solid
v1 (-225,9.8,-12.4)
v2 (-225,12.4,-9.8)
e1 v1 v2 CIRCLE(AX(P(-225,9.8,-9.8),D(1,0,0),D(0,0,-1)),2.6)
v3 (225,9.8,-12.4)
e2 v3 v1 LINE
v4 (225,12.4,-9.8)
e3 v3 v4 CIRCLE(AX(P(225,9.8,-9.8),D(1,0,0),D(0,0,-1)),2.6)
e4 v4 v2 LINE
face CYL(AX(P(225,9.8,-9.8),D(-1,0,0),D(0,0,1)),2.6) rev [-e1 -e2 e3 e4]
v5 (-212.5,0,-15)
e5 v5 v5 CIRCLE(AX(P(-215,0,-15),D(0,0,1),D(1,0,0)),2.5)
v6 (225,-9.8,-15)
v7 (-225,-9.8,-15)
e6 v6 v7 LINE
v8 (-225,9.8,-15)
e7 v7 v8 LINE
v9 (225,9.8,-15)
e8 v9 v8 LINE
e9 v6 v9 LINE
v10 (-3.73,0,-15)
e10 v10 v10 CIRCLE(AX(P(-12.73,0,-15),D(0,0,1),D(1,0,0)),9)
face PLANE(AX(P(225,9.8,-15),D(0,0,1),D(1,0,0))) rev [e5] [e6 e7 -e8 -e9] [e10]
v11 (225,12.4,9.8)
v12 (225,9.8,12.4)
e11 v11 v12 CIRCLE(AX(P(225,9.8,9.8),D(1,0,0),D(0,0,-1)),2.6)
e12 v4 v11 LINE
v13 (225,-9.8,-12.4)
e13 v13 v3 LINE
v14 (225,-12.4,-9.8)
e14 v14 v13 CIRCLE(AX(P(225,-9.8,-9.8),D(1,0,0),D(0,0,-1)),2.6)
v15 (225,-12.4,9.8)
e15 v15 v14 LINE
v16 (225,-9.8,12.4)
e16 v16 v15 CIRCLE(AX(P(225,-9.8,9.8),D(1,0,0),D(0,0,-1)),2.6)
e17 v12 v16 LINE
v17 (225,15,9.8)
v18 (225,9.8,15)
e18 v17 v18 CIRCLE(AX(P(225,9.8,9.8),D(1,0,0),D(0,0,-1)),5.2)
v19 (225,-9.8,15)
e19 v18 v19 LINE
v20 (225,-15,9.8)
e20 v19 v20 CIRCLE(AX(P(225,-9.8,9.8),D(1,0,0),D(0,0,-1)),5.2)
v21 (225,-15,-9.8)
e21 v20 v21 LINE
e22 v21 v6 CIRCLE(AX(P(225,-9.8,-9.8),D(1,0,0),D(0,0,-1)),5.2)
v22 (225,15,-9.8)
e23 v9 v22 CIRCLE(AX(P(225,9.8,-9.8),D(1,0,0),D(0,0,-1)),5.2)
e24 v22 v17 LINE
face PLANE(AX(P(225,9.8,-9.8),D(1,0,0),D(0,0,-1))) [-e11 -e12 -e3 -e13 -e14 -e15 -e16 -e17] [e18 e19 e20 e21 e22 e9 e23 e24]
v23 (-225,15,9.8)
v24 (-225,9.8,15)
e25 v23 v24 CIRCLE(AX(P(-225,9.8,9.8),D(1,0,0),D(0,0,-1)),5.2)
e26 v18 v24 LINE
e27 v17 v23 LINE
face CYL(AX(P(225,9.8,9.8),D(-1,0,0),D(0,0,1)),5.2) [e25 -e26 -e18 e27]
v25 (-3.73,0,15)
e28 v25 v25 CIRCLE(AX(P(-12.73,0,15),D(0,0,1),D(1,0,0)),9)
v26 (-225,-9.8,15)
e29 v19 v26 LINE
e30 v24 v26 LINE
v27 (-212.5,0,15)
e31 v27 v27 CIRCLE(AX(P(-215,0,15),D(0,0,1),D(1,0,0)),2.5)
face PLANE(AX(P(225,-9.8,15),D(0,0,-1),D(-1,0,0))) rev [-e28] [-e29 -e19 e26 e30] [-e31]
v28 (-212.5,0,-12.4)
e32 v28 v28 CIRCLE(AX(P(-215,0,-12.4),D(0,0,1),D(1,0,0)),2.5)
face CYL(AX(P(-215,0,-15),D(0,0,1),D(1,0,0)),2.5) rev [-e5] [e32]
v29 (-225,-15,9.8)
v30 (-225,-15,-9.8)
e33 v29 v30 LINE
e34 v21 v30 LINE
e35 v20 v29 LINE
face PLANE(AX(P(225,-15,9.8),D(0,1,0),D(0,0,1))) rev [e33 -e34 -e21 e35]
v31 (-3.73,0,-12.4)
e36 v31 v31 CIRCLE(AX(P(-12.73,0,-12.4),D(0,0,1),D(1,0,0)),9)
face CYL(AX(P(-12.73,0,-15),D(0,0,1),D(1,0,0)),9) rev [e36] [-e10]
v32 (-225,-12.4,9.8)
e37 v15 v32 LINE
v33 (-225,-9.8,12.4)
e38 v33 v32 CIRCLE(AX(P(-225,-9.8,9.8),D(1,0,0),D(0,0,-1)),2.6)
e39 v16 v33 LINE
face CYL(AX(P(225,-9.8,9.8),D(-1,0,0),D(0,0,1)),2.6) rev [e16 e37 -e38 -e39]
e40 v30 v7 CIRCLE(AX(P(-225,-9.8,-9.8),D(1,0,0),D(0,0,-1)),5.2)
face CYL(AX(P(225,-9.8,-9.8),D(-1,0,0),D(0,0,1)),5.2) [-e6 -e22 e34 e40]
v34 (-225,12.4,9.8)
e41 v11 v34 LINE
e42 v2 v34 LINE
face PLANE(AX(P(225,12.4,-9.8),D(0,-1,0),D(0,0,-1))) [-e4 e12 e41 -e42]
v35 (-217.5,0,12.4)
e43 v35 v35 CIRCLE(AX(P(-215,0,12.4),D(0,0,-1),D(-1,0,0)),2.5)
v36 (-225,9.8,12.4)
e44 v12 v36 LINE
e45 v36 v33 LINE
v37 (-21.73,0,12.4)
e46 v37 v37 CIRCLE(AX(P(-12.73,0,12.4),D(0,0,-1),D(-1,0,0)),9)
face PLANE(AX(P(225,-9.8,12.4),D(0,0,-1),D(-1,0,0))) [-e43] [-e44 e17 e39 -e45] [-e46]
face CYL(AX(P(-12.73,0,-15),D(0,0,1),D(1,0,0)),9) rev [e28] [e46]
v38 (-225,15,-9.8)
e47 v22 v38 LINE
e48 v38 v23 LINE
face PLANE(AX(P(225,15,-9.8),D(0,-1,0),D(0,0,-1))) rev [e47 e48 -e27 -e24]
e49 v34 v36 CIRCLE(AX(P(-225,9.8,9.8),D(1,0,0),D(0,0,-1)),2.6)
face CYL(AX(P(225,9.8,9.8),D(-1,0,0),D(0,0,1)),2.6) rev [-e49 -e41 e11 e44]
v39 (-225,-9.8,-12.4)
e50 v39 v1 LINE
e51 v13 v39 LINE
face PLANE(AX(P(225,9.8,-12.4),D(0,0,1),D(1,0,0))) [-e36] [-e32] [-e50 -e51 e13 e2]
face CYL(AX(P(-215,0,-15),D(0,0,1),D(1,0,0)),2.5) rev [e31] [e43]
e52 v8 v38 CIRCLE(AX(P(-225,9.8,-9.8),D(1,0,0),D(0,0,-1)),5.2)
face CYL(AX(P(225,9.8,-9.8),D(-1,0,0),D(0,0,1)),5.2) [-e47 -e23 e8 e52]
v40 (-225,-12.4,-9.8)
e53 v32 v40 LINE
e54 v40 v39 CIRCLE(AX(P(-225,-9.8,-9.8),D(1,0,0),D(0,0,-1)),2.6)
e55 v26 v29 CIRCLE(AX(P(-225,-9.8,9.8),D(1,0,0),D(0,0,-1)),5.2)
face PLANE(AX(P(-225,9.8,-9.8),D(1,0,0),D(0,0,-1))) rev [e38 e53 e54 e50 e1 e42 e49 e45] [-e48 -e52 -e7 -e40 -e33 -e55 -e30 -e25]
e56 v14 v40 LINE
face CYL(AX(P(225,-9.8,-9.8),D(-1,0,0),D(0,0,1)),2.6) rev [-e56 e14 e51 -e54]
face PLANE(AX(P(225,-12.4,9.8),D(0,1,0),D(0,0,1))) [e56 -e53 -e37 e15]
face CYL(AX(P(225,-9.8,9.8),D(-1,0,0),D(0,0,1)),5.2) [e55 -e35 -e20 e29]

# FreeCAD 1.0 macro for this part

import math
import FreeCAD as App
import Part
import Sketcher

doc = App.newDocument("Part")
body = doc.addObject("PartDesign::Body", "Body")

# Sketch on YZ plane
sketch1 = doc.addObject("Sketcher::SketchObject", "Sketch")
body.addObject(sketch1)
sketch1.AttachmentSupport = (doc.YZ_Plane, [""])
sketch1.MapMode = "FlatFace"
sketch1.AttachmentOffset = App.Placement(App.Vector(0, 0, -225), App.Rotation())
sketch1.addGeometry([
    Part.LineSegment(App.Vector(-15, 9.8, 0), App.Vector(-15, -9.8, 0)),  # 0
    Part.ArcOfCircle(Part.Circle(App.Vector(-9.8, -9.8, 0), App.Vector(0, 0, 1), 5.2), math.radians(-180), math.radians(-90)),  # 1
    Part.LineSegment(App.Vector(-9.8, -15, 0), App.Vector(9.8, -15, 0)),  # 2
    Part.ArcOfCircle(Part.Circle(App.Vector(9.8, -9.8, 0), App.Vector(0, 0, 1), 5.2), math.radians(-90), math.radians(0)),  # 3
    Part.LineSegment(App.Vector(15, -9.8, 0), App.Vector(15, 9.8, 0)),  # 4
    Part.ArcOfCircle(Part.Circle(App.Vector(9.8, 9.8, 0), App.Vector(0, 0, 1), 5.2), math.radians(0), math.radians(90)),  # 5
    Part.LineSegment(App.Vector(9.8, 15, 0), App.Vector(-9.8, 15, 0)),  # 6
    Part.ArcOfCircle(Part.Circle(App.Vector(-9.8, 9.8, 0), App.Vector(0, 0, 1), 5.2), math.radians(90), math.radians(180)),  # 7
    Part.LineSegment(App.Vector(-12.4, -9.8, 0), App.Vector(-12.4, 9.8, 0)),  # 8
    Part.ArcOfCircle(Part.Circle(App.Vector(-9.8, 9.8, 0), App.Vector(0, 0, 1), 2.6), math.radians(90), math.radians(180)),  # 9
    Part.LineSegment(App.Vector(-9.8, 12.4, 0), App.Vector(9.8, 12.4, 0)),  # 10
    Part.ArcOfCircle(Part.Circle(App.Vector(9.8, 9.8, 0), App.Vector(0, 0, 1), 2.6), math.radians(0), math.radians(90)),  # 11
    Part.LineSegment(App.Vector(12.4, 9.8, 0), App.Vector(12.4, -9.8, 0)),  # 12
    Part.ArcOfCircle(Part.Circle(App.Vector(9.8, -9.8, 0), App.Vector(0, 0, 1), 2.6), math.radians(-90), math.radians(0)),  # 13
    Part.LineSegment(App.Vector(9.8, -12.4, 0), App.Vector(-9.8, -12.4, 0)),  # 14
    Part.ArcOfCircle(Part.Circle(App.Vector(-9.8, -9.8, 0), App.Vector(0, 0, 1), 2.6), math.radians(180), math.radians(270)),  # 15
], False)
sketch1.addConstraint([
    Sketcher.Constraint("Tangent", 0, 2, 1, 1),
    Sketcher.Constraint("Tangent", 1, 2, 2, 1),
    Sketcher.Constraint("Tangent", 2, 2, 3, 1),
    Sketcher.Constraint("Tangent", 3, 2, 4, 1),
    Sketcher.Constraint("Tangent", 4, 2, 5, 1),
    Sketcher.Constraint("Tangent", 5, 2, 6, 1),
    Sketcher.Constraint("Tangent", 6, 2, 7, 1),
    Sketcher.Constraint("Tangent", 7, 2, 0, 1),
    Sketcher.Constraint("Tangent", 8, 2, 9, 2),
    Sketcher.Constraint("Tangent", 9, 1, 10, 1),
    Sketcher.Constraint("Tangent", 10, 2, 11, 2),
    Sketcher.Constraint("Tangent", 11, 1, 12, 1),
    Sketcher.Constraint("Tangent", 12, 2, 13, 2),
    Sketcher.Constraint("Tangent", 13, 1, 14, 1),
    Sketcher.Constraint("Tangent", 14, 2, 15, 2),
    Sketcher.Constraint("Tangent", 15, 1, 8, 1),
    Sketcher.Constraint("Vertical", 0),
    Sketcher.Constraint("Horizontal", 2),
    Sketcher.Constraint("Vertical", 4),
    Sketcher.Constraint("Horizontal", 6),
    Sketcher.Constraint("Vertical", 8),
    Sketcher.Constraint("Horizontal", 10),
    Sketcher.Constraint("Vertical", 12),
    Sketcher.Constraint("Horizontal", 14),
    Sketcher.Constraint("Coincident", 9, 3, 7, 3),
    Sketcher.Constraint("Coincident", 11, 3, 5, 3),
    Sketcher.Constraint("Coincident", 13, 3, 3, 3),
    Sketcher.Constraint("Equal", 1, 3),
    Sketcher.Constraint("Equal", 3, 5),
    Sketcher.Constraint("Equal", 5, 7),
    Sketcher.Constraint("Equal", 13, 15),
    Sketcher.Constraint("Symmetric", 1, 3, 5, 3, -1, 1),
    Sketcher.Constraint("Equal", 14, 0),
    Sketcher.Constraint("Radius", 1, 5.2),
    Sketcher.Constraint("Radius", 9, 2.6),
    Sketcher.Constraint("DistanceX", 2, 1, 2, 2, 19.6),
])
pad1 = doc.addObject("PartDesign::Pad", "Pad")
body.addObject(pad1)
pad1.Profile = sketch1
pad1.Length = 450

# Sketch on XY plane
sketch2 = doc.addObject("Sketcher::SketchObject", "Sketch001")
body.addObject(sketch2)
sketch2.AttachmentSupport = (doc.XY_Plane, [""])
sketch2.MapMode = "FlatFace"
sketch2.AttachmentOffset = App.Placement(App.Vector(0, 0, 15), App.Rotation())
sketch2.addGeometry([
    Part.Circle(App.Vector(-215, 0, 0), App.Vector(0, 0, 1), 2.5),
    Part.Circle(App.Vector(-12.73, 0, 0), App.Vector(0, 0, 1), 9),
], False)
sketch2.addConstraint([
    Sketcher.Constraint("PointOnObject", 0, 3, -1),
    Sketcher.Constraint("PointOnObject", 1, 3, -1),
    Sketcher.Constraint("Diameter", 0, 5.0),
    Sketcher.Constraint("Diameter", 1, 18.0),
    Sketcher.Constraint("DistanceX", 0, 3, -1, 1, 215.0),
    Sketcher.Constraint("DistanceX", 1, 3, -1, 1, 12.73),
])
pocket1 = doc.addObject("PartDesign::Pocket", "Pocket")
body.addObject(pocket1)
pocket1.Profile = sketch2
pocket1.Type = "ThroughAll"

doc.recompute()
